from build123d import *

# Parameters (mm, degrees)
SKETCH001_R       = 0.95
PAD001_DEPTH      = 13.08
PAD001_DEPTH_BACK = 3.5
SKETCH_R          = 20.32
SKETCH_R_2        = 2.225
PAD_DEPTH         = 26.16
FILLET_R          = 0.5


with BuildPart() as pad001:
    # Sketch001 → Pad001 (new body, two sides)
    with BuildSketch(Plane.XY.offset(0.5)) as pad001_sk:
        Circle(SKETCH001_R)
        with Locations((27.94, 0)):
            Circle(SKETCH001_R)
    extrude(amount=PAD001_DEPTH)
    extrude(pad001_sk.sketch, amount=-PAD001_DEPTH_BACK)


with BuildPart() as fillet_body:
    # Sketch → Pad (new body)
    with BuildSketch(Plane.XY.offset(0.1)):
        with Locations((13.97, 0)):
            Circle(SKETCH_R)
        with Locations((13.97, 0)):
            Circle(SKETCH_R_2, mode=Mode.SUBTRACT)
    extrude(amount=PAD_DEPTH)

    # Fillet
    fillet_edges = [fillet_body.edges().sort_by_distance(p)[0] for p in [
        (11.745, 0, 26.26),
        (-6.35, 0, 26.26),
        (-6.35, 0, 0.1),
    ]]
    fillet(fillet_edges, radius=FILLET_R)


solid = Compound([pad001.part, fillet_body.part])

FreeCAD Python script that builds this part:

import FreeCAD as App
import Part
import Sketcher
from FreeCAD import Vector
Q = App.Units.Quantity


def edges_at(feature, points):
    """Names of the edges that pass closest to the given points."""
    edges = feature.Shape.Edges
    near = lambda p: min(range(len(edges)), key=lambda i: edges[i].distToShape(Part.Vertex(*p))[0])
    return sorted({f"Edge{near(p) + 1}" for p in points})

doc = App.newDocument("Part")
body = doc.addObject("PartDesign::Body", "Body")
body.AllowCompound = True

# Sketch on XY plane
sketch1 = body.newObject("Sketcher::SketchObject", "Sketch")
sketch1.AttachmentSupport = (doc.getObject("XY_Plane"), [""])
sketch1.MapMode = "FlatFace"
sketch1.AttachmentOffset = App.Placement(Vector(0, 0, 0.5), App.Rotation())
sketch1.addGeometry(Part.Circle(Vector(0, 0, 0), Vector(0, 0, 1), 0.9), False)
sketch1.addGeometry(Part.Circle(Vector(27.9, 0, 0), Vector(0, 0, 1), 0.9), False)
sketch1.addConstraint(Sketcher.Constraint("Coincident", 0, 3, -1, 1))
sketch1.addConstraint(Sketcher.Constraint("Equal", 0, 1))
sketch1.addConstraint(Sketcher.Constraint("PointOnObject", 1, 3, -1))
sketch1.addConstraint(Sketcher.Constraint("Diameter", 0, Q("1.9 mm")))
sketch1.addConstraint(Sketcher.Constraint("DistanceX", -1, 1, 1, 3, Q("27.94 mm")))
pad1 = body.newObject("PartDesign::Pad", "Pad")
pad1.Profile = sketch1
pad1.Type = "TwoLengths"
pad1.Length = 13.08
pad1.Length2 = 3.5
body2 = doc.addObject("PartDesign::Body", "Body001")

# Sketch on XY plane
sketch2 = body2.newObject("Sketcher::SketchObject", "Sketch001")
sketch2.AttachmentSupport = (doc.getObject("XY_Plane001"), [""])
sketch2.MapMode = "FlatFace"
sketch2.AttachmentOffset = App.Placement(Vector(0, 0, 0.1), App.Rotation())
sketch2.addGeometry(Part.Circle(Vector(14, 0, 0), Vector(0, 0, 1), 20.3), False)
sketch2.addGeometry(Part.Circle(Vector(14, 0, 0), Vector(0, 0, 1), 2.2), False)
sketch2.addConstraint(Sketcher.Constraint("Coincident", 1, 3, 0, 3))
sketch2.addConstraint(Sketcher.Constraint("PointOnObject", 0, 3, -1))
sketch2.addConstraint(Sketcher.Constraint("Diameter", 0, Q("40.64 mm")))
sketch2.addConstraint(Sketcher.Constraint("Diameter", 1, Q("4.45 mm")))
sketch2.addConstraint(Sketcher.Constraint("DistanceX", -1, 1, 0, 3, Q("13.97 mm")))
pad2 = body2.newObject("PartDesign::Pad", "Pad001")
pad2.Profile = sketch2
pad2.Length = 26.16
doc.recompute()

fillet = body2.newObject("PartDesign::Fillet", "Fillet")
fillet.Base = (pad2, edges_at(pad2, [(11.745, 0, 26.26), (-6.35, 0, 26.26), (-6.35, 0, 0.1)]))
fillet.Radius = 0.5

doc.recompute()
